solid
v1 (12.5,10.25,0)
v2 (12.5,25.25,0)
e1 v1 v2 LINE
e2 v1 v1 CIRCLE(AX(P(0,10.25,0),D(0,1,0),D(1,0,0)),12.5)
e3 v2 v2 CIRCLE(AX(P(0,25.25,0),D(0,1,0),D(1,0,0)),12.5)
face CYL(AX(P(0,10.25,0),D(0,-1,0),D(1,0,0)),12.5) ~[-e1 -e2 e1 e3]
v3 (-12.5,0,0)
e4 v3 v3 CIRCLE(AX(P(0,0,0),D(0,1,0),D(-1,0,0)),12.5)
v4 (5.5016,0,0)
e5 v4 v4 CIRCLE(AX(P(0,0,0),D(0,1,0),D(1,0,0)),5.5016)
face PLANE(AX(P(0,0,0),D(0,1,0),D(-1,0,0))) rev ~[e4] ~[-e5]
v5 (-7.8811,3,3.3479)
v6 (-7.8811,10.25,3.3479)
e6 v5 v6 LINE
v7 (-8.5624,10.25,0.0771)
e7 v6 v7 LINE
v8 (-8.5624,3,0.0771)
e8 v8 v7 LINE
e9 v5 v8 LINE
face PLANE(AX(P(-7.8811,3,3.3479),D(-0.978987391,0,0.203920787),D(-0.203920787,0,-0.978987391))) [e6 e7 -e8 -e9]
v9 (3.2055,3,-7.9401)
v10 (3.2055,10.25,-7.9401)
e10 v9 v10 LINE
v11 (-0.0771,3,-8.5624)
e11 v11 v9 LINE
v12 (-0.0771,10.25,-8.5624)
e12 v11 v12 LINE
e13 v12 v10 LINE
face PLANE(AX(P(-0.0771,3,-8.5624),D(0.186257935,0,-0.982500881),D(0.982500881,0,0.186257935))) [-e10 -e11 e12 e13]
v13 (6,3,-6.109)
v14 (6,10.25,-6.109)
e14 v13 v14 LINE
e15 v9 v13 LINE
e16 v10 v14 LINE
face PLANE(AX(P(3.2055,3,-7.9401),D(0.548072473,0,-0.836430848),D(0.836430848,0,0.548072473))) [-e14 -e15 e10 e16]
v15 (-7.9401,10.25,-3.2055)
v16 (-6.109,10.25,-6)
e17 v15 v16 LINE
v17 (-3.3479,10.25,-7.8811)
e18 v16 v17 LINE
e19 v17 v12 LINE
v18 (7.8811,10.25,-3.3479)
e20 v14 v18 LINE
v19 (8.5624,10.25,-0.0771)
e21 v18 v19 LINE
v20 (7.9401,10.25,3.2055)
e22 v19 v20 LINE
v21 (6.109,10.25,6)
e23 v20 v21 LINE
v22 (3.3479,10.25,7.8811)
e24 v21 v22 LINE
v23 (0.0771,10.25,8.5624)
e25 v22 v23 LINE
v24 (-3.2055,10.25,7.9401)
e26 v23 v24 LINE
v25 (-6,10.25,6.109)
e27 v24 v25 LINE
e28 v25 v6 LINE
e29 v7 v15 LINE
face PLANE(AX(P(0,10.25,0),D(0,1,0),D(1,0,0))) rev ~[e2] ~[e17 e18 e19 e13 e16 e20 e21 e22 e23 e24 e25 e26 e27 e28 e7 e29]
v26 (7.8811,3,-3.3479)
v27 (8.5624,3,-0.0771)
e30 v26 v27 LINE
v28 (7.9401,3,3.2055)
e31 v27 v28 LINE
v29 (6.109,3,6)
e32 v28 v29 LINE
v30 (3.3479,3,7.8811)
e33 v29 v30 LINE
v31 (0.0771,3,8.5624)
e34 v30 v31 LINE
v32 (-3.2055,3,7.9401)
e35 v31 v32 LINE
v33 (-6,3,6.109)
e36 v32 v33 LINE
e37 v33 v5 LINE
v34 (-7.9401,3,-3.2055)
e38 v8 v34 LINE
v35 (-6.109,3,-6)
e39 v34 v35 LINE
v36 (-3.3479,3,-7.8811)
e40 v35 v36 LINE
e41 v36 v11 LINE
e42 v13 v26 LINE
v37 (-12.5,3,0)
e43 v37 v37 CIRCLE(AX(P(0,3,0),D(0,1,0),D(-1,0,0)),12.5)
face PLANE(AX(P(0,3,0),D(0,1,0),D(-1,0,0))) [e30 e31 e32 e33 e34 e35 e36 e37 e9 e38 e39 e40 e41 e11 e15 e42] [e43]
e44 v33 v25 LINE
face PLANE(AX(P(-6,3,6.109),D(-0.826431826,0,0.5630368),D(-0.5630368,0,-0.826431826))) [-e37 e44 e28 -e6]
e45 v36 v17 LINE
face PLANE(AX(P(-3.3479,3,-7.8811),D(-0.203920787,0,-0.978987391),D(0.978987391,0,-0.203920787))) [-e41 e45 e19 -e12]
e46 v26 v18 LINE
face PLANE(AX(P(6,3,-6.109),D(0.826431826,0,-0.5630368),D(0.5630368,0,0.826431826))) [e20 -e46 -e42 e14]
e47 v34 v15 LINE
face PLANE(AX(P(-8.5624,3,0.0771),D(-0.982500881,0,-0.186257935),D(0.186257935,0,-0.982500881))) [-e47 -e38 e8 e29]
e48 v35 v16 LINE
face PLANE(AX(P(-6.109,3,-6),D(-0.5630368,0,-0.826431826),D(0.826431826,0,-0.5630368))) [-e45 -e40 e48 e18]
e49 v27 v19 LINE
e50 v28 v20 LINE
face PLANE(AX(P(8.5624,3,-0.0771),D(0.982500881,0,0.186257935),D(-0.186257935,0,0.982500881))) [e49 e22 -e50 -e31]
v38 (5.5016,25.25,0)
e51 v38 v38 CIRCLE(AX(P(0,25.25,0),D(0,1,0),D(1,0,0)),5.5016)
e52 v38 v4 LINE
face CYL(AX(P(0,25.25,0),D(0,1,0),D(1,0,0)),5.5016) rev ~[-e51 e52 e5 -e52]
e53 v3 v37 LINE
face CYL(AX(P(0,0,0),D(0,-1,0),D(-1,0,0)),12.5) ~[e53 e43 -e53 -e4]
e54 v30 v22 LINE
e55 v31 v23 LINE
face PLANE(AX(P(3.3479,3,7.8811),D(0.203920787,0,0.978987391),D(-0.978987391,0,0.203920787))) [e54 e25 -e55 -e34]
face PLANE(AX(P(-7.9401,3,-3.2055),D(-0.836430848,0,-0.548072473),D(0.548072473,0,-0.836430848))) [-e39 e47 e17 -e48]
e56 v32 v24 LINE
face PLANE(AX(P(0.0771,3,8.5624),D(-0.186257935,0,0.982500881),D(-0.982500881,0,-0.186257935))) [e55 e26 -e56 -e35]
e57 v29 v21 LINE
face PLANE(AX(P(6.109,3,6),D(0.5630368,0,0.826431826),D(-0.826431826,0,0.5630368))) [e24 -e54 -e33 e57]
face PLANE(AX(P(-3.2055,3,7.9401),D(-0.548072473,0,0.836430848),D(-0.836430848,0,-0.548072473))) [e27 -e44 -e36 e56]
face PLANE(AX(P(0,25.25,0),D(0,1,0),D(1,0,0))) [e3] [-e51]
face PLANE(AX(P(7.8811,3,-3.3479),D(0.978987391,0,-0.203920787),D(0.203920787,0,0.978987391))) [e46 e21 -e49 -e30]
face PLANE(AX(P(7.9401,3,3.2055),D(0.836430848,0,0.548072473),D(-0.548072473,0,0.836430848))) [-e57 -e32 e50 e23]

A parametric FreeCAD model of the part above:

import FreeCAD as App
import Part
import Sketcher
from FreeCAD import Vector

doc = App.newDocument("Part")
body = doc.addObject("PartDesign::Body", "Body")

sketch1 = body.newObject("Sketcher::SketchObject", "Sketch")
sketch1.AttachmentSupport = (doc.getObject("XZ_Plane"), [""])
sketch1.MapMode = "FlatFace"
sketch1.addGeometry(Part.Circle(Vector(0, 0, 0), Vector(0, 0, 1), 12), False)
sketch1.addConstraint(Sketcher.Constraint("Coincident", 0, 3, -1, 1))
sketch1.addConstraint(Sketcher.Constraint("Diameter", 0, 25.0))
pad1 = body.newObject("PartDesign::Pad", "Pad")
pad1.Profile = sketch1
pad1.Length = 3
pad1.Reversed = True

sketch2 = body.newObject("Sketcher::SketchObject", "Sketch001")
sketch2.AttachmentSupport = (doc.getObject("XZ_Plane"), [""])
sketch2.MapMode = "FlatFace"
sketch2.AttachmentOffset = App.Placement(Vector(0, 0, -3), App.Rotation())
sketch2.addGeometry(Part.LineSegment(Vector(7.9, -3.3, 0), Vector(6, -6.1, 0)), False)
sketch2.addGeometry(Part.LineSegment(Vector(6, -6.1, 0), Vector(3.2, -7.9, 0)), False)
sketch2.addGeometry(Part.LineSegment(Vector(3.2, -7.9, 0), Vector(-0.1, -8.6, 0)), False)
sketch2.addGeometry(Part.LineSegment(Vector(-0.1, -8.6, 0), Vector(-3.3, -7.9, 0)), False)
sketch2.addGeometry(Part.LineSegment(Vector(-3.3, -7.9, 0), Vector(-6.1, -6, 0)), False)
sketch2.addGeometry(Part.LineSegment(Vector(-6.1, -6, 0), Vector(-7.9, -3.2, 0)), False)
sketch2.addGeometry(Part.LineSegment(Vector(-7.9, -3.2, 0), Vector(-8.6, 0.1, 0)), False)
sketch2.addGeometry(Part.LineSegment(Vector(-8.6, 0.1, 0), Vector(-7.9, 3.3, 0)), False)
sketch2.addGeometry(Part.LineSegment(Vector(-7.9, 3.3, 0), Vector(-6, 6.1, 0)), False)
sketch2.addGeometry(Part.LineSegment(Vector(-6, 6.1, 0), Vector(-3.2, 7.9, 0)), False)
sketch2.addGeometry(Part.LineSegment(Vector(-3.2, 7.9, 0), Vector(0.1, 8.6, 0)), False)
sketch2.addGeometry(Part.LineSegment(Vector(0.1, 8.6, 0), Vector(3.3, 7.9, 0)), False)
sketch2.addGeometry(Part.LineSegment(Vector(3.3, 7.9, 0), Vector(6.1, 6, 0)), False)
sketch2.addGeometry(Part.LineSegment(Vector(6.1, 6, 0), Vector(7.9, 3.2, 0)), False)
sketch2.addGeometry(Part.LineSegment(Vector(7.9, 3.2, 0), Vector(8.6, -0.1, 0)), False)
sketch2.addGeometry(Part.LineSegment(Vector(8.6, -0.1, 0), Vector(7.9, -3.3, 0)), False)
sketch2.addConstraint(Sketcher.Constraint("Coincident", 0, 2, 1, 1))
sketch2.addConstraint(Sketcher.Constraint("Coincident", 1, 2, 2, 1))
sketch2.addConstraint(Sketcher.Constraint("Coincident", 2, 2, 3, 1))
sketch2.addConstraint(Sketcher.Constraint("Coincident", 3, 2, 4, 1))
sketch2.addConstraint(Sketcher.Constraint("Coincident", 4, 2, 5, 1))
sketch2.addConstraint(Sketcher.Constraint("Coincident", 5, 2, 6, 1))
sketch2.addConstraint(Sketcher.Constraint("Coincident", 6, 2, 7, 1))
sketch2.addConstraint(Sketcher.Constraint("Coincident", 7, 2, 8, 1))
sketch2.addConstraint(Sketcher.Constraint("Coincident", 8, 2, 9, 1))
sketch2.addConstraint(Sketcher.Constraint("Coincident", 9, 2, 10, 1))
sketch2.addConstraint(Sketcher.Constraint("Coincident", 10, 2, 11, 1))
sketch2.addConstraint(Sketcher.Constraint("Coincident", 11, 2, 12, 1))
sketch2.addConstraint(Sketcher.Constraint("Coincident", 12, 2, 13, 1))
sketch2.addConstraint(Sketcher.Constraint("Coincident", 13, 2, 14, 1))
sketch2.addConstraint(Sketcher.Constraint("Coincident", 14, 2, 15, 1))
sketch2.addConstraint(Sketcher.Constraint("Coincident", 15, 2, 0, 1))
sketch2.addConstraint(Sketcher.Constraint("Symmetric", 0, 2, 8, 2, -1, 1))
sketch2.addConstraint(Sketcher.Constraint("Symmetric", 1, 2, 9, 2, -1, 1))
sketch2.addConstraint(Sketcher.Constraint("Symmetric", 2, 2, 10, 2, -1, 1))
sketch2.addConstraint(Sketcher.Constraint("Symmetric", 3, 2, 11, 2, -1, 1))
sketch2.addConstraint(Sketcher.Constraint("Symmetric", 4, 2, 12, 2, -1, 1))
sketch2.addConstraint(Sketcher.Constraint("Symmetric", 5, 2, 13, 2, -1, 1))
sketch2.addConstraint(Sketcher.Constraint("Symmetric", 6, 2, 14, 2, -1, 1))
sketch2.addConstraint(Sketcher.Constraint("Symmetric", 7, 2, 15, 2, -1, 1))
sketch2.addConstraint(Sketcher.Constraint("Perpendicular", 0, 4))
sketch2.addConstraint(Sketcher.Constraint("Perpendicular", 1, 5))
sketch2.addConstraint(Sketcher.Constraint("Perpendicular", 2, 6))
sketch2.addConstraint(Sketcher.Constraint("Perpendicular", 3, 7))
sketch2.addConstraint(Sketcher.Constraint("Equal", 0, 1))
sketch2.addConstraint(Sketcher.Constraint("Equal", 1, 2))
sketch2.addConstraint(Sketcher.Constraint("Equal", 2, 3))
sketch2.addConstraint(Sketcher.Constraint("Equal", 3, 4))
sketch2.addConstraint(Sketcher.Constraint("Equal", 4, 5))
sketch2.addConstraint(Sketcher.Constraint("Equal", 5, 6))
sketch2.addConstraint(Sketcher.Constraint("Equal", 6, 7))
sketch2.addConstraint(Sketcher.Constraint("DistanceX", -1, 1, 0, 2, 6.0))
sketch2.addConstraint(Sketcher.Constraint("DistanceY", 1, 2, -1, 1, 7.94))
sketch2.addConstraint(Sketcher.Constraint("DistanceY", 3, 2, 8, 2, 13.99))
sketch2.addConstraint(Sketcher.Constraint("Distance", 0, 3.341))
sketch2.addConstraint(Sketcher.Constraint("DistanceY", 0, 2, -1, 1, 6.109))
pad2 = body.newObject("PartDesign::Pad", "Pad001")
pad2.Profile = sketch2
pad2.Length = 7.25
pad2.Reversed = True

sketch3 = body.newObject("Sketcher::SketchObject", "Sketch002")
sketch3.AttachmentSupport = (doc.getObject("XZ_Plane"), [""])
sketch3.MapMode = "FlatFace"
sketch3.AttachmentOffset = App.Placement(Vector(0, 0, -10.25), App.Rotation())
sketch3.addGeometry(Part.Circle(Vector(0, 0, 0), Vector(0, 0, 1), 12), False)
sketch3.addConstraint(Sketcher.Constraint("Coincident", 0, 3, -1, 1))
sketch3.addConstraint(Sketcher.Constraint("Diameter", 0, 25.0))
pad3 = body.newObject("PartDesign::Pad", "Pad002")
pad3.Profile = sketch3
pad3.Length = 15
pad3.Reversed = True

sketch4 = body.newObject("Sketcher::SketchObject", "Sketch003")
sketch4.AttachmentSupport = (doc.getObject("XZ_Plane"), [""])
sketch4.MapMode = "FlatFace"
sketch4.AttachmentOffset = App.Placement(Vector(0, 0, -25.25), App.Rotation())
sketch4.addGeometry(Part.Circle(Vector(0, 0, 0), Vector(0, 0, 1), 6), False)
sketch4.addConstraint(Sketcher.Constraint("Coincident", 0, 3, -1, 1))
sketch4.addConstraint(Sketcher.Constraint("Diameter", 0, 11.0032))
pocket1 = body.newObject("PartDesign::Pocket", "Pocket")
pocket1.Profile = sketch4
pocket1.Length = 30
pocket1.Reversed = True

doc.recompute()
